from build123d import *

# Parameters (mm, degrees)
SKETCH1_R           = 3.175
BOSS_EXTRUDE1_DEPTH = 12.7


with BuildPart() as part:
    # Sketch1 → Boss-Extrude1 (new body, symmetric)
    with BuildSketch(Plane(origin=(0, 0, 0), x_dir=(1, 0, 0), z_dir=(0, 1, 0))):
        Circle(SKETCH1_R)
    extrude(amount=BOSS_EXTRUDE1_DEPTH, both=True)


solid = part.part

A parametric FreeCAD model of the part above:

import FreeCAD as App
import Part
import Sketcher
from FreeCAD import Vector
Q = App.Units.Quantity

doc = App.newDocument("Part")
params = doc.addObject("Spreadsheet::Sheet", "Params")
for row, (alias, value) in enumerate([
    ("sketch1_diameter", "0.25 in"),
    ("pad1_length", "1 in"),
], start=1):
    params.set(f"A{row}", alias)
    params.set(f"B{row}", "=" + value)
    params.setAlias(f"B{row}", alias)

body = doc.addObject("PartDesign::Body", "Body")

# Sketch on XZ plane
sketch1 = body.newObject("Sketcher::SketchObject", "Sketch")
sketch1.AttachmentSupport = (doc.getObject("XZ_Plane"), [""])
sketch1.MapMode = "FlatFace"
sketch1.addGeometry(Part.Circle(Vector(0, 0, 0), Vector(0, 0, 1), 3.2), False)
sketch1.addConstraint(Sketcher.Constraint("Coincident", 0, 3, -1, 1))
sketch1.addConstraint(Sketcher.Constraint("Diameter", 0, Q("0.25 in")))
sketch1.setExpression("Constraints[1]", "Params.sketch1_diameter")
pad1 = body.newObject("PartDesign::Pad", "Pad")
pad1.Profile = sketch1
pad1.setExpression("Length", "Params.pad1_length")
pad1.Midplane = True

doc.recompute()
